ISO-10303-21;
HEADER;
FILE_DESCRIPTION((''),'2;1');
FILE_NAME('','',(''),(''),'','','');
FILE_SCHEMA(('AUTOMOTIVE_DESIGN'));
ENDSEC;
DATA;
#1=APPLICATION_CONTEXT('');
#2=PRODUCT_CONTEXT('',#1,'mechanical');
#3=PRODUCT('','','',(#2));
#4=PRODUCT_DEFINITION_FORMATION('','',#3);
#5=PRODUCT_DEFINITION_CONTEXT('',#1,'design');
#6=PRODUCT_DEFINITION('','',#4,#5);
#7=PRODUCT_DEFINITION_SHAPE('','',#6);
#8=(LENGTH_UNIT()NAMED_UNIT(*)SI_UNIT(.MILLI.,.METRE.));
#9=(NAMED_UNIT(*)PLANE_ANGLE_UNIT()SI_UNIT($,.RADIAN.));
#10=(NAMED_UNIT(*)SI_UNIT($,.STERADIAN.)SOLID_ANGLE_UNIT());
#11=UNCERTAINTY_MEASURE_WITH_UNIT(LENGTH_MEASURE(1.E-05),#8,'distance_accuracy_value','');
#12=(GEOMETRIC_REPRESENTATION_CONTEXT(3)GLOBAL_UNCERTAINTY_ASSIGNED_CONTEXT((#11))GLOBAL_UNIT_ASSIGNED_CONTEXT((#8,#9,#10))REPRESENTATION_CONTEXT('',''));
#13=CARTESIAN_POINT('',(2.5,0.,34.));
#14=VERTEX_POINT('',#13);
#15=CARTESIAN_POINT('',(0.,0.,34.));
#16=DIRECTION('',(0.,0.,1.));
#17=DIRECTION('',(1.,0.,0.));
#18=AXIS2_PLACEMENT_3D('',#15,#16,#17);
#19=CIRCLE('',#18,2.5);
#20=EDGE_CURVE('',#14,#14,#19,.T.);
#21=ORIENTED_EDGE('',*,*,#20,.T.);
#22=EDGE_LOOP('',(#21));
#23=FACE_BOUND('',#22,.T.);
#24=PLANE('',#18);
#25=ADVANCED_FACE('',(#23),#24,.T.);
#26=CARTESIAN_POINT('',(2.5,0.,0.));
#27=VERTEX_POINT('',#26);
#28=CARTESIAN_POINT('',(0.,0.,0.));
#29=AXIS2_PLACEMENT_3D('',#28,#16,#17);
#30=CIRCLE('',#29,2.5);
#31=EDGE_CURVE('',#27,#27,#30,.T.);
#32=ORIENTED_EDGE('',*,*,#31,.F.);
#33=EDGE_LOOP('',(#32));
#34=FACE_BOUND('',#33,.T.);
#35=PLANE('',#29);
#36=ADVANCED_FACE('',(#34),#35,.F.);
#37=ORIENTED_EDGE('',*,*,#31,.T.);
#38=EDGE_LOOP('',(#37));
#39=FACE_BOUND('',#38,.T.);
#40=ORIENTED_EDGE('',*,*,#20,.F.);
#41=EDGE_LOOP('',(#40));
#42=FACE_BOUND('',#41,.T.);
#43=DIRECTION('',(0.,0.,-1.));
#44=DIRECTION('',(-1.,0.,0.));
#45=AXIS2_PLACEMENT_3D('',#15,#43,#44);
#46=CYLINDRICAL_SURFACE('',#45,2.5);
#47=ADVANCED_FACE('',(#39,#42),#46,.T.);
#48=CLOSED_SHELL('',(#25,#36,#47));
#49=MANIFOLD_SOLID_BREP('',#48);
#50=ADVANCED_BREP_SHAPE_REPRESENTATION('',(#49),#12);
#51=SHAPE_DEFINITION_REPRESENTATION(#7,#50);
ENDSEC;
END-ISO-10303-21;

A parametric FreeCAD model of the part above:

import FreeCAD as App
import Part
import Sketcher
Q = App.Units.Quantity

doc = App.newDocument("Part")
body = doc.addObject("PartDesign::Body", "Body")

# Sketch on XY plane
sketch1 = body.newObject("Sketcher::SketchObject", "Sketch")
sketch1.AttachmentSupport = (doc.getObject("XY_Plane"), [""])
sketch1.MapMode = "FlatFace"
sketch1.addGeometry(Part.Circle(App.Vector(0, 0, 0), App.Vector(0, 0, 1), 2.5), False)
sketch1.addConstraint(Sketcher.Constraint("Coincident", 0, 3, -1, 1))
sketch1.addConstraint(Sketcher.Constraint("Diameter", 0, Q("5 mm")))
pad1 = body.newObject("PartDesign::Pad", "Pad")
pad1.Profile = sketch1
pad1.Length = 34

doc.recompute()
